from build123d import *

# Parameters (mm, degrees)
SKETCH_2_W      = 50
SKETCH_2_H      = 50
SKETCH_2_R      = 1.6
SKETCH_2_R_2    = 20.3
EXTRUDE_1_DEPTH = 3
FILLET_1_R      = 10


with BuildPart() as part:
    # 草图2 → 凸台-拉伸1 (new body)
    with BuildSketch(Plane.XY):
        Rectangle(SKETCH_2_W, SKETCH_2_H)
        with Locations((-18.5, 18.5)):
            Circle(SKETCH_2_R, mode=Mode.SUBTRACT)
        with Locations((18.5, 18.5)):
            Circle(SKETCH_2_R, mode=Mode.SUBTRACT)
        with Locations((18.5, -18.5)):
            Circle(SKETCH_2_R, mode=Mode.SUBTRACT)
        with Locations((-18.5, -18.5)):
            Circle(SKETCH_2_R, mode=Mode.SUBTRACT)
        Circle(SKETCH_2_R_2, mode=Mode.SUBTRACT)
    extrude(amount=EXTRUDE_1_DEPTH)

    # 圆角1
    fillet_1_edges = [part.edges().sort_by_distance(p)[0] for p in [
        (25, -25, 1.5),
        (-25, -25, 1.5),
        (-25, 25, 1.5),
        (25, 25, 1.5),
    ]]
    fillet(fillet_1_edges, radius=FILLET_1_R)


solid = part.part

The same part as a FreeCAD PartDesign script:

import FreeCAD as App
import Part
import Sketcher

V = App.Vector


def edges_at(feature, points):
    """Names of the edges that pass closest to the given points."""
    edges = feature.Shape.Edges
    near = lambda p: min(range(len(edges)), key=lambda i: edges[i].distToShape(Part.Vertex(*p))[0])
    return sorted({f"Edge{near(p) + 1}" for p in points})

doc = App.newDocument("Part")
params = doc.addObject("Spreadsheet::Sheet", "Params")
for row, (alias, value) in enumerate([
    ("sketch1_diameter", "3.2 mm"),
    ("sketch1_diameter2", "40.6 mm"),
    ("sketch1_width", "50 mm"),
    ("pad1_length", "3 mm"),
    ("fillet_radius", "10 mm"),
], start=1):
    params.set(f"A{row}", alias)
    params.set(f"B{row}", "=" + value)
    params.setAlias(f"B{row}", alias)

body = doc.addObject("PartDesign::Body", "Body")

# Sketch on XY plane
sketch1 = body.newObject("Sketcher::SketchObject", "Sketch")
sketch1.AttachmentSupport = (doc.getObject("XY_Plane"), [""])
sketch1.MapMode = "FlatFace"
sketch1.addGeometry(Part.LineSegment(V(-25, 25, 0), V(-25, -25, 0)), False)
sketch1.addGeometry(Part.LineSegment(V(-25, -25, 0), V(25, -25, 0)), False)
sketch1.addGeometry(Part.LineSegment(V(25, -25, 0), V(25, 25, 0)), False)
sketch1.addGeometry(Part.LineSegment(V(25, 25, 0), V(-25, 25, 0)), False)
sketch1.addGeometry(Part.Circle(V(-18.5, -18.5, 0), V(0, 0, 1), 1.6), False)
sketch1.addGeometry(Part.Circle(V(0, 0, 0), V(0, 0, 1), 20.3), False)
sketch1.addGeometry(Part.Circle(V(18.5, -18.5, 0), V(0, 0, 1), 1.6), False)
sketch1.addGeometry(Part.Circle(V(-18.5, 18.5, 0), V(0, 0, 1), 1.6), False)
sketch1.addGeometry(Part.Circle(V(18.5, 18.5, 0), V(0, 0, 1), 1.6), False)
sketch1.addConstraint(Sketcher.Constraint("Coincident", 0, 2, 1, 1))
sketch1.addConstraint(Sketcher.Constraint("Coincident", 1, 2, 2, 1))
sketch1.addConstraint(Sketcher.Constraint("Coincident", 2, 2, 3, 1))
sketch1.addConstraint(Sketcher.Constraint("Coincident", 3, 2, 0, 1))
sketch1.addConstraint(Sketcher.Constraint("Vertical", 0))
sketch1.addConstraint(Sketcher.Constraint("Horizontal", 1))
sketch1.addConstraint(Sketcher.Constraint("Vertical", 2))
sketch1.addConstraint(Sketcher.Constraint("Horizontal", 3))
sketch1.addConstraint(Sketcher.Constraint("Coincident", 5, 3, -1, 1))
sketch1.addConstraint(Sketcher.Constraint("Equal", 4, 6))
sketch1.addConstraint(Sketcher.Constraint("Equal", 6, 7))
sketch1.addConstraint(Sketcher.Constraint("Equal", 7, 8))
sketch1.addConstraint(Sketcher.Constraint("Symmetric", 6, 3, 7, 3, -1, 1))
sketch1.addConstraint(Sketcher.Constraint("Symmetric", 4, 3, 8, 3, -1, 1))
sketch1.addConstraint(Sketcher.Constraint("Symmetric", 0, 2, 2, 2, -1, 1))
sketch1.addConstraint(Sketcher.Constraint("Symmetric", 4, 3, 6, 3, -2))
sketch1.addConstraint(Sketcher.Constraint("Equal", 3, 0))
sketch1.addConstraint(Sketcher.Constraint("Diameter", 4, 3.2))
sketch1.addConstraint(Sketcher.Constraint("Diameter", 5, 40.6))
sketch1.addConstraint(Sketcher.Constraint("DistanceX", 1, 1, 1, 2, 50.0))
sketch1.addConstraint(Sketcher.Constraint("DistanceX", 4, 3, 6, 3, 37.0))
sketch1.addConstraint(Sketcher.Constraint("DistanceY", 4, 3, 7, 3, 37.0))
sketch1.setExpression("Constraints[17]", "Params.sketch1_diameter")
sketch1.setExpression("Constraints[18]", "Params.sketch1_diameter2")
sketch1.setExpression("Constraints[19]", "Params.sketch1_width")
pad1 = body.newObject("PartDesign::Pad", "Pad")
pad1.Profile = sketch1
pad1.setExpression("Length", "Params.pad1_length")
doc.recompute()

fillet = body.newObject("PartDesign::Fillet", "Fillet")
fillet.Base = (pad1, edges_at(pad1, [
    (25, -25, 1.5),
    (-25, -25, 1.5),
    (-25, 25, 1.5),
    (25, 25, 1.5),
]))
fillet.setExpression("Radius", "Params.fillet_radius")

doc.recompute()
